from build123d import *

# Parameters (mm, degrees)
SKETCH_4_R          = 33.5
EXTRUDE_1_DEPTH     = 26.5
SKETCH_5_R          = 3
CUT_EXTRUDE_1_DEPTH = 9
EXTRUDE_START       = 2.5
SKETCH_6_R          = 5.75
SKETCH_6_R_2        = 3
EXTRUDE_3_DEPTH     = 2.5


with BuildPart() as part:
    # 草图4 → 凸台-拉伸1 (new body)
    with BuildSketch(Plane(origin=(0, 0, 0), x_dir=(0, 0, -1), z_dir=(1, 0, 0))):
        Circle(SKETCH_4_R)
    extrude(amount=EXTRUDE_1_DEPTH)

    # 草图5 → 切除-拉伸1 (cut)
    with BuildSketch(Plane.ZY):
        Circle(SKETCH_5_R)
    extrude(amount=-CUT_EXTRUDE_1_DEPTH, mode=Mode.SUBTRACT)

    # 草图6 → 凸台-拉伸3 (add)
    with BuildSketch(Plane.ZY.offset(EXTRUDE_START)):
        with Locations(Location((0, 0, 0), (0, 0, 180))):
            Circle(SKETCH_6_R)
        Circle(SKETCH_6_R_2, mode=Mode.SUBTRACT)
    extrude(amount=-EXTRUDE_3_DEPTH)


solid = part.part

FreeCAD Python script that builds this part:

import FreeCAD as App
import Part
import Sketcher
from FreeCAD import Vector
Q = App.Units.Quantity

doc = App.newDocument("Part")
body = doc.addObject("PartDesign::Body", "Body")

sketch1 = body.newObject("Sketcher::SketchObject", "Sketch")
sketch1.AttachmentSupport = (doc.getObject("YZ_Plane"), [""])
sketch1.MapMode = "FlatFace"
sketch1.addGeometry(Part.Circle(Vector(0, 0, 0), Vector(0, 0, 1), 33.5), False)
sketch1.addConstraint(Sketcher.Constraint("Coincident", 0, 3, -1, 1))
sketch1.addConstraint(Sketcher.Constraint("Diameter", 0, Q("67 mm")))
pad1 = body.newObject("PartDesign::Pad", "Pad")
pad1.Profile = sketch1
pad1.Length = 26.5

sketch2 = body.newObject("Sketcher::SketchObject", "Sketch001")
sketch2.AttachmentSupport = (doc.getObject("YZ_Plane"), [""])
sketch2.MapMode = "FlatFace"
sketch2.addGeometry(Part.Circle(Vector(0, 0, 0), Vector(0, 0, 1), 3), False)
sketch2.addConstraint(Sketcher.Constraint("Coincident", 0, 3, -1, 1))
sketch2.addConstraint(Sketcher.Constraint("Diameter", 0, Q("6 mm")))
pocket1 = body.newObject("PartDesign::Pocket", "Pocket")
pocket1.Profile = sketch2
pocket1.Length = 9
pocket1.Reversed = True

sketch3 = body.newObject("Sketcher::SketchObject", "Sketch002")
sketch3.AttachmentSupport = (doc.getObject("YZ_Plane"), [""])
sketch3.MapMode = "FlatFace"
sketch3.AttachmentOffset = App.Placement(Vector(0, 0, -2.5), App.Rotation())
sketch3.addGeometry(Part.Circle(Vector(0, 0, 0), Vector(0, 0, 1), 5.75), False)
sketch3.addGeometry(Part.Circle(Vector(0, 0, 0), Vector(0, 0, 1), 3), False)
sketch3.addConstraint(Sketcher.Constraint("Coincident", 0, 3, -1, 1))
sketch3.addConstraint(Sketcher.Constraint("Coincident", 1, 3, -1, 1))
sketch3.addConstraint(Sketcher.Constraint("Diameter", 1, Q("6 mm")))
sketch3.addConstraint(Sketcher.Constraint("Diameter", 0, Q("11.5 mm")))
pad2 = body.newObject("PartDesign::Pad", "Pad001")
pad2.Profile = sketch3
pad2.Length = 2.5

doc.recompute()
